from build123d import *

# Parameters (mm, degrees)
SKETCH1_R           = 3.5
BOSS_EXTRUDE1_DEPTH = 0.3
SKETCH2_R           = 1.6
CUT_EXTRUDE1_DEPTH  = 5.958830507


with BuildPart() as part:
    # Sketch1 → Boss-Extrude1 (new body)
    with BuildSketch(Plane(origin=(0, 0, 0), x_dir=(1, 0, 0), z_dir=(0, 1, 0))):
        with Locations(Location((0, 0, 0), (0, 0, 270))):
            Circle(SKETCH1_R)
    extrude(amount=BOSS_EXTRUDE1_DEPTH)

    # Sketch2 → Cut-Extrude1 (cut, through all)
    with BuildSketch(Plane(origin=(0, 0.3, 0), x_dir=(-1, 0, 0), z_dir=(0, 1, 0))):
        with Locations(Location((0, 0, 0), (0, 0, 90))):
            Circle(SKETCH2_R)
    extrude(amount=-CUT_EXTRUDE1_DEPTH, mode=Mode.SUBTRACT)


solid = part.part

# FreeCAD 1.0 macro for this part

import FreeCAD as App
import Part
import Sketcher

doc = App.newDocument("Part")
params = doc.addObject("Spreadsheet::Sheet", "Params")
for row, (alias, value) in enumerate([
    ("sketch1_diameter", "7 mm"),
    ("pad1_length", "0.3 mm"),
    ("sketch2_diameter", "3.2 mm"),
], start=1):
    params.set(f"A{row}", alias)
    params.set(f"B{row}", "=" + value)
    params.setAlias(f"B{row}", alias)

body = doc.addObject("PartDesign::Body", "Body")

# Sketch on XZ plane
sketch1 = doc.addObject("Sketcher::SketchObject", "Sketch")
body.addObject(sketch1)
sketch1.AttachmentSupport = (doc.XZ_Plane, [""])
sketch1.MapMode = "FlatFace"
sketch1.addGeometry(Part.Circle(App.Vector(0, 0, 0), App.Vector(0, 0, 1), 3.5), False)
sketch1.addConstraint([
    Sketcher.Constraint("Coincident", 0, 3, -1, 1),
    Sketcher.Constraint("Diameter", 0, 7.0),
])
sketch1.setExpression("Constraints[1]", "Params.sketch1_diameter")
pad1 = doc.addObject("PartDesign::Pad", "Pad")
body.addObject(pad1)
pad1.Profile = sketch1
pad1.setExpression("Length", "Params.pad1_length")
pad1.Reversed = True

# Sketch on XZ plane
sketch2 = doc.addObject("Sketcher::SketchObject", "Sketch001")
body.addObject(sketch2)
sketch2.AttachmentSupport = (doc.XZ_Plane, [""])
sketch2.MapMode = "FlatFace"
sketch2.AttachmentOffset = App.Placement(App.Vector(0, 0, -0.3), App.Rotation())
sketch2.addGeometry(Part.Circle(App.Vector(0, 0, 0), App.Vector(0, 0, 1), 1.6), False)
sketch2.addConstraint([
    Sketcher.Constraint("Coincident", 0, 3, -1, 1),
    Sketcher.Constraint("Diameter", 0, 3.2),
])
sketch2.setExpression("Constraints[1]", "Params.sketch2_diameter")
pocket1 = doc.addObject("PartDesign::Pocket", "Pocket")
body.addObject(pocket1)
pocket1.Profile = sketch2
pocket1.Type = "ThroughAll"
pocket1.Reversed = True

doc.recompute()
